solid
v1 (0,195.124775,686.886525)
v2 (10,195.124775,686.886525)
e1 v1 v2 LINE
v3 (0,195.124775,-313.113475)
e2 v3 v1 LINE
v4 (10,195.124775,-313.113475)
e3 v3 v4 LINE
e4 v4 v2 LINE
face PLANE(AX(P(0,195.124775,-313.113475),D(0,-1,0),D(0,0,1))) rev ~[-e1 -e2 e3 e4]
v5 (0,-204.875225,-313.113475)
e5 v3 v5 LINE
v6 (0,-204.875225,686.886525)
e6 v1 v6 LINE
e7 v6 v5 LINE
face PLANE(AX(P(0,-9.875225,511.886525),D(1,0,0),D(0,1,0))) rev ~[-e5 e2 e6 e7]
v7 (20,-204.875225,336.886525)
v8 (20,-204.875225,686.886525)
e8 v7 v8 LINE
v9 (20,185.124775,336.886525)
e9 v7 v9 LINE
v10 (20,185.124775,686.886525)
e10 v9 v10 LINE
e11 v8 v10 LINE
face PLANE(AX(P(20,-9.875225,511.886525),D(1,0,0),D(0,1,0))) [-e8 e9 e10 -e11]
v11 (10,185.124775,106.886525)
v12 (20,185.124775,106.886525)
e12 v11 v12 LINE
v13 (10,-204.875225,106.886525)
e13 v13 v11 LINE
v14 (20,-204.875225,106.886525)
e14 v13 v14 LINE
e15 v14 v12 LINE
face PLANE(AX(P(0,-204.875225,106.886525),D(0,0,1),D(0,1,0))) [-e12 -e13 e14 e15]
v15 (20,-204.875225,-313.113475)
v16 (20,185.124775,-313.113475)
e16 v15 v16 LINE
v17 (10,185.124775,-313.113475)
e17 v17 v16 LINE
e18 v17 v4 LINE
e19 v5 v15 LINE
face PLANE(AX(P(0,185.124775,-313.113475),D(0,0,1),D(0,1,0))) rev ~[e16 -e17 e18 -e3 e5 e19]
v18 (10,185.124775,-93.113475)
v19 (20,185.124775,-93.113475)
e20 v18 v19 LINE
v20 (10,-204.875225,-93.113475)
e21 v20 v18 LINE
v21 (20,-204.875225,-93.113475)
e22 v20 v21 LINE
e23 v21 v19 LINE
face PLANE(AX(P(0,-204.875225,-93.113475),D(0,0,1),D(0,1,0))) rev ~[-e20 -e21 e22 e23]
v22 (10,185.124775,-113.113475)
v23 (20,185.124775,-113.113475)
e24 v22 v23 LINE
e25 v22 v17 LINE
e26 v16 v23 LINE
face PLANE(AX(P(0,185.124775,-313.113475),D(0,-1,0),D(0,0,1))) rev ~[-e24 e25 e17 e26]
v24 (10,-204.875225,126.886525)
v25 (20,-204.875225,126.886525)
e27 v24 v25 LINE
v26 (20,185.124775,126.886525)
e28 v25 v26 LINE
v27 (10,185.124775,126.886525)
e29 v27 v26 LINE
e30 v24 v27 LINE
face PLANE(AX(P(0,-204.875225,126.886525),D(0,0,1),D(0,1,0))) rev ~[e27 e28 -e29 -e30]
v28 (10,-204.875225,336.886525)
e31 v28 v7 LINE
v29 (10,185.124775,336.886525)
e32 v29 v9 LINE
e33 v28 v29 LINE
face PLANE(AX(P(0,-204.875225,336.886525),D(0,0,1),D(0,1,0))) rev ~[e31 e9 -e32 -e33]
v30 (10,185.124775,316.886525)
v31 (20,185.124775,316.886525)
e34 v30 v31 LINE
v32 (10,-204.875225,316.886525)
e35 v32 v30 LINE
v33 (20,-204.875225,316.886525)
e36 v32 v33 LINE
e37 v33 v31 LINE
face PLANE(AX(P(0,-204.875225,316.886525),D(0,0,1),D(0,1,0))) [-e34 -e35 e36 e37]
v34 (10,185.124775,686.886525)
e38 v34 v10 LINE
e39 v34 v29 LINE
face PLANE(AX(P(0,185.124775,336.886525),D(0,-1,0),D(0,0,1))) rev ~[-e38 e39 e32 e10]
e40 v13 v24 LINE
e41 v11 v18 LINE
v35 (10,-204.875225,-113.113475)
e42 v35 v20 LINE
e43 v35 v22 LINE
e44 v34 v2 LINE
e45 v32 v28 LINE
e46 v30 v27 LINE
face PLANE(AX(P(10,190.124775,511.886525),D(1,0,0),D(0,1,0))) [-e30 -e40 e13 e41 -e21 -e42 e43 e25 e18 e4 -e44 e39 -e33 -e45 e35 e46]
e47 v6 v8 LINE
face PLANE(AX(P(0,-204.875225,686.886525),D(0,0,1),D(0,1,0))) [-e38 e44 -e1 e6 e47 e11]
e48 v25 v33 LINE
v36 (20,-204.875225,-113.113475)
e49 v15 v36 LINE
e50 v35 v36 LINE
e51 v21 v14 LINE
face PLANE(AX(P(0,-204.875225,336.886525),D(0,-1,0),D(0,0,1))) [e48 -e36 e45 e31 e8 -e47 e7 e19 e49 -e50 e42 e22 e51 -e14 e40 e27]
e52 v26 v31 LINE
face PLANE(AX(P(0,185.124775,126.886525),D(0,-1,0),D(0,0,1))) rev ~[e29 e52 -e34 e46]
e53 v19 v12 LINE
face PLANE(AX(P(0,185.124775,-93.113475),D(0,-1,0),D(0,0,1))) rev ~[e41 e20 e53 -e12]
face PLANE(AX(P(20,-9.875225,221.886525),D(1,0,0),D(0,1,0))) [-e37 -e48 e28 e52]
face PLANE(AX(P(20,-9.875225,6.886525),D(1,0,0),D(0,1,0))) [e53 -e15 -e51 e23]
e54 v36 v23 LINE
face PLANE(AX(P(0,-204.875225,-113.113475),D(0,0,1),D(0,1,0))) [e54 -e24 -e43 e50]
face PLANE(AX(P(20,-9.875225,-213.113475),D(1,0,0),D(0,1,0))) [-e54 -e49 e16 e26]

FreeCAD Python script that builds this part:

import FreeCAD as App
import Part
import Sketcher

V = App.Vector
Q = App.Units.Quantity


def add_polygon(sketch, points):
    """Adds a closed chain of lines whose ends are joined by coincident constraints."""
    first, n = sketch.GeometryCount, len(points)
    for a, b in zip(points, points[1:] + points[:1]):
        sketch.addGeometry(Part.LineSegment(App.Vector(*a, 0), App.Vector(*b, 0)), False)
    for i in range(n):
        sketch.addConstraint(Sketcher.Constraint("Coincident", first + i, 2, first + (i + 1) % n, 1))

doc = App.newDocument("Part")
body = doc.addObject("PartDesign::Body", "Body")

# Sketch on YZ plane
sketch1 = body.newObject("Sketcher::SketchObject", "Sketch")
sketch1.AttachmentSupport = (doc.getObject("YZ_Plane"), [""])
sketch1.MapMode = "FlatFace"
add_polygon(sketch1, [(185, 687), (185, 337), (-205, 337), (-205, 317), (185, 317), (185, 127), (-205, 127), (-205, 107), (185, 107), (185, -93), (-205, -93), (-205, -113), (185, -113), (185, -313), (195, -313), (195, 687)])  # lines 0-15
sketch1.addConstraint([
    Sketcher.Constraint("Vertical", 0),
    Sketcher.Constraint("Horizontal", 1),
    Sketcher.Constraint("Vertical", 2),
    Sketcher.Constraint("Horizontal", 3),
    Sketcher.Constraint("Vertical", 4),
    Sketcher.Constraint("Horizontal", 5),
    Sketcher.Constraint("Vertical", 6),
    Sketcher.Constraint("Horizontal", 7),
    Sketcher.Constraint("Vertical", 8),
    Sketcher.Constraint("Horizontal", 9),
    Sketcher.Constraint("Vertical", 10),
    Sketcher.Constraint("Horizontal", 11),
    Sketcher.Constraint("Vertical", 12),
    Sketcher.Constraint("Horizontal", 13),
    Sketcher.Constraint("Vertical", 14),
    Sketcher.Constraint("Horizontal", 15),
    Sketcher.Constraint("Vertical", 0, 2, 3, 2),
    Sketcher.Constraint("Vertical", 2, 2, 5, 2),
    Sketcher.Constraint("Vertical", 4, 2, 7, 2),
    Sketcher.Constraint("Vertical", 6, 2, 9, 2),
    Sketcher.Constraint("Vertical", 8, 2, 11, 2),
    Sketcher.Constraint("Equal", 2, 6),
    Sketcher.Constraint("Equal", 6, 10),
    Sketcher.Constraint("Equal", 8, 12),
    Sketcher.Constraint("DistanceX", 1, 2, 1, 1, Q("390 mm")),
    Sketcher.Constraint("DistanceX", 13, 1, 13, 2, Q("10 mm")),
    Sketcher.Constraint("DistanceY", 0, 2, 0, 1, Q("350 mm")),
    Sketcher.Constraint("DistanceY", 2, 2, 2, 1, Q("20 mm")),
    Sketcher.Constraint("DistanceY", 4, 2, 4, 1, Q("190 mm")),
    Sketcher.Constraint("DistanceY", 8, 2, 8, 1, Q("200 mm")),
    Sketcher.Constraint("DistanceX", -1, 1, 0, 2, Q("185.124775 mm")),
    Sketcher.Constraint("DistanceY", -1, 1, 0, 2, Q("336.886525 mm")),
])
pad1 = body.newObject("PartDesign::Pad", "Pad")
pad1.Profile = sketch1
pad1.Length = 10

# Sketch on YZ plane
sketch2 = body.newObject("Sketcher::SketchObject", "Sketch001")
sketch2.AttachmentSupport = (doc.getObject("YZ_Plane"), [""])
sketch2.MapMode = "FlatFace"
add_polygon(sketch2, [(-205, 687), (-205, 337), (185, 337), (185, 687)])  # lines 0-3
add_polygon(sketch2, [(-205, 317), (-205, 127), (185, 127), (185, 317)])  # lines 4-7
add_polygon(sketch2, [(-205, 107), (-205, -93), (185, -93), (185, 107)])  # lines 8-11
add_polygon(sketch2, [(-205, -113), (-205, -313), (185, -313), (185, -113)])  # lines 12-15
sketch2.addConstraint([
    Sketcher.Constraint("Vertical", 0),
    Sketcher.Constraint("Horizontal", 1),
    Sketcher.Constraint("Vertical", 2),
    Sketcher.Constraint("Horizontal", 3),
    Sketcher.Constraint("Vertical", 4),
    Sketcher.Constraint("Horizontal", 5),
    Sketcher.Constraint("Vertical", 6),
    Sketcher.Constraint("Horizontal", 7),
    Sketcher.Constraint("Vertical", 8),
    Sketcher.Constraint("Horizontal", 9),
    Sketcher.Constraint("Vertical", 10),
    Sketcher.Constraint("Horizontal", 11),
    Sketcher.Constraint("Vertical", 12),
    Sketcher.Constraint("Horizontal", 13),
    Sketcher.Constraint("Vertical", 14),
    Sketcher.Constraint("Horizontal", 15),
    Sketcher.Constraint("Vertical", 3, 2, 4, 2),
    Sketcher.Constraint("Vertical", 2, 2, 5, 2),
    Sketcher.Constraint("Vertical", 7, 2, 8, 2),
    Sketcher.Constraint("Vertical", 6, 2, 9, 2),
    Sketcher.Constraint("Vertical", 11, 2, 12, 2),
    Sketcher.Constraint("Vertical", 10, 2, 13, 2),
    Sketcher.Constraint("Equal", 10, 12),
    Sketcher.Constraint("DistanceX", 1, 1, 1, 2, Q("390 mm")),
    Sketcher.Constraint("DistanceY", 0, 2, 0, 1, Q("350 mm")),
    Sketcher.Constraint("DistanceY", 4, 2, 4, 1, Q("190 mm")),
    Sketcher.Constraint("DistanceY", 8, 2, 8, 1, Q("200 mm")),
    Sketcher.Constraint("DistanceY", 4, 2, 0, 2, Q("210 mm")),
    Sketcher.Constraint("DistanceY", 8, 2, 4, 2, Q("220 mm")),
    Sketcher.Constraint("DistanceY", 12, 2, 8, 2, Q("220 mm")),
    Sketcher.Constraint("DistanceX", 0, 2, -1, 1, Q("204.875225 mm")),
    Sketcher.Constraint("DistanceY", -1, 1, 0, 2, Q("336.886525 mm")),
])
pad2 = body.newObject("PartDesign::Pad", "Pad001")
pad2.Profile = sketch2
pad2.Length = 20

doc.recompute()
